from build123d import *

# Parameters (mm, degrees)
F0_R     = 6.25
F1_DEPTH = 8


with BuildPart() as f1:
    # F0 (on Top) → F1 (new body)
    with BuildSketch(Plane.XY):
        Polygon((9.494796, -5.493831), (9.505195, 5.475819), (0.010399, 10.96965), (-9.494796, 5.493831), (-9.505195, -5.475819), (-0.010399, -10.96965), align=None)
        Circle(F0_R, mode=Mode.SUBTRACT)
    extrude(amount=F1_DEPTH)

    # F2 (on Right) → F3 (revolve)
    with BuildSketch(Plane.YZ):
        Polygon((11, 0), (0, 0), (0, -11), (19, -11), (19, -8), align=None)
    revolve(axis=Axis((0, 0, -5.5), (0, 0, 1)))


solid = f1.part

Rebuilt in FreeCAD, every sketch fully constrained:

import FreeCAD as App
import Part
import Sketcher
from FreeCAD import Vector
Q = App.Units.Quantity

doc = App.newDocument("Part")
body = doc.addObject("PartDesign::Body", "Body")

# Sketch on XY plane
sketch1 = body.newObject("Sketcher::SketchObject", "Sketch")
sketch1.AttachmentSupport = (doc.getObject("XY_Plane"), [""])
sketch1.MapMode = "FlatFace"
sketch1.addGeometry(Part.LineSegment(Vector(9, -5, 0), Vector(10, 5, 0)), False)
sketch1.addGeometry(Part.LineSegment(Vector(10, 5, 0), Vector(0, 11, 0)), False)
sketch1.addGeometry(Part.LineSegment(Vector(0, 11, 0), Vector(-9, 5, 0)), False)
sketch1.addGeometry(Part.LineSegment(Vector(-9, 5, 0), Vector(-10, -5, 0)), False)
sketch1.addGeometry(Part.LineSegment(Vector(-10, -5, 0), Vector(0, -11, 0)), False)
sketch1.addGeometry(Part.LineSegment(Vector(0, -11, 0), Vector(9, -5, 0)), False)
sketch1.addGeometry(Part.Circle(Vector(0, 0, 0), Vector(0, 0, 1), 6), False)
sketch1.addConstraint(Sketcher.Constraint("Coincident", 0, 2, 1, 1))
sketch1.addConstraint(Sketcher.Constraint("Coincident", 1, 2, 2, 1))
sketch1.addConstraint(Sketcher.Constraint("Coincident", 2, 2, 3, 1))
sketch1.addConstraint(Sketcher.Constraint("Coincident", 3, 2, 4, 1))
sketch1.addConstraint(Sketcher.Constraint("Coincident", 4, 2, 5, 1))
sketch1.addConstraint(Sketcher.Constraint("Coincident", 5, 2, 0, 1))
sketch1.addConstraint(Sketcher.Constraint("Coincident", 6, 3, -1, 1))
sketch1.addConstraint(Sketcher.Constraint("Symmetric", 0, 2, 3, 2, -1, 1))
sketch1.addConstraint(Sketcher.Constraint("Symmetric", 1, 2, 4, 2, -1, 1))
sketch1.addConstraint(Sketcher.Constraint("Symmetric", 2, 2, 5, 2, -1, 1))
sketch1.addConstraint(Sketcher.Constraint("Equal", 0, 1))
sketch1.addConstraint(Sketcher.Constraint("Equal", 1, 2))
sketch1.addConstraint(Sketcher.Constraint("Diameter", 6, Q("12.5 mm")))
sketch1.addConstraint(Sketcher.Constraint("DistanceX", -1, 1, 1, 2, Q("0.010399 mm")))
sketch1.addConstraint(Sketcher.Constraint("DistanceX", 3, 2, 2, 2, Q("0.010399 mm")))
sketch1.addConstraint(Sketcher.Constraint("DistanceY", 4, 2, 1, 2, Q("21.9393 mm")))
sketch1.addConstraint(Sketcher.Constraint("DistanceY", -1, 1, 0, 2, Q("5.475819 mm")))
pad1 = body.newObject("PartDesign::Pad", "Pad")
pad1.Profile = sketch1
pad1.Length = 8

# Sketch on YZ plane
sketch2 = body.newObject("Sketcher::SketchObject", "Sketch001")
sketch2.AttachmentSupport = (doc.getObject("YZ_Plane"), [""])
sketch2.MapMode = "FlatFace"
sketch2.addGeometry(Part.LineSegment(Vector(11, 0, 0), Vector(0, 0, 0)), False)
sketch2.addGeometry(Part.LineSegment(Vector(0, 0, 0), Vector(0, -11, 0)), False)
sketch2.addGeometry(Part.LineSegment(Vector(0, -11, 0), Vector(19, -11, 0)), False)
sketch2.addGeometry(Part.LineSegment(Vector(19, -11, 0), Vector(19, -8, 0)), False)
sketch2.addGeometry(Part.LineSegment(Vector(19, -8, 0), Vector(11, 0, 0)), False)
sketch2.addConstraint(Sketcher.Constraint("Coincident", 0, 2, 1, 1))
sketch2.addConstraint(Sketcher.Constraint("Coincident", 1, 2, 2, 1))
sketch2.addConstraint(Sketcher.Constraint("Coincident", 2, 2, 3, 1))
sketch2.addConstraint(Sketcher.Constraint("Coincident", 3, 2, 4, 1))
sketch2.addConstraint(Sketcher.Constraint("Coincident", 4, 2, 0, 1))
sketch2.addConstraint(Sketcher.Constraint("Horizontal", 0))
sketch2.addConstraint(Sketcher.Constraint("Vertical", 1))
sketch2.addConstraint(Sketcher.Constraint("Horizontal", 2))
sketch2.addConstraint(Sketcher.Constraint("Vertical", 3))
sketch2.addConstraint(Sketcher.Constraint("Coincident", 0, 2, -1, 1))
sketch2.addConstraint(Sketcher.Constraint("Equal", 0, 1))
sketch2.addConstraint(Sketcher.Constraint("DistanceX", 0, 2, 0, 1, Q("11 mm")))
sketch2.addConstraint(Sketcher.Constraint("DistanceX", 2, 1, 2, 2, Q("19 mm")))
sketch2.addConstraint(Sketcher.Constraint("DistanceY", 3, 1, 3, 2, Q("3 mm")))
revolution = body.newObject("PartDesign::Revolution", "Revolution")
revolution.Profile = sketch2
revolution.ReferenceAxis = (sketch2, ["V_Axis"])
revolution.Angle = 360

doc.recompute()
